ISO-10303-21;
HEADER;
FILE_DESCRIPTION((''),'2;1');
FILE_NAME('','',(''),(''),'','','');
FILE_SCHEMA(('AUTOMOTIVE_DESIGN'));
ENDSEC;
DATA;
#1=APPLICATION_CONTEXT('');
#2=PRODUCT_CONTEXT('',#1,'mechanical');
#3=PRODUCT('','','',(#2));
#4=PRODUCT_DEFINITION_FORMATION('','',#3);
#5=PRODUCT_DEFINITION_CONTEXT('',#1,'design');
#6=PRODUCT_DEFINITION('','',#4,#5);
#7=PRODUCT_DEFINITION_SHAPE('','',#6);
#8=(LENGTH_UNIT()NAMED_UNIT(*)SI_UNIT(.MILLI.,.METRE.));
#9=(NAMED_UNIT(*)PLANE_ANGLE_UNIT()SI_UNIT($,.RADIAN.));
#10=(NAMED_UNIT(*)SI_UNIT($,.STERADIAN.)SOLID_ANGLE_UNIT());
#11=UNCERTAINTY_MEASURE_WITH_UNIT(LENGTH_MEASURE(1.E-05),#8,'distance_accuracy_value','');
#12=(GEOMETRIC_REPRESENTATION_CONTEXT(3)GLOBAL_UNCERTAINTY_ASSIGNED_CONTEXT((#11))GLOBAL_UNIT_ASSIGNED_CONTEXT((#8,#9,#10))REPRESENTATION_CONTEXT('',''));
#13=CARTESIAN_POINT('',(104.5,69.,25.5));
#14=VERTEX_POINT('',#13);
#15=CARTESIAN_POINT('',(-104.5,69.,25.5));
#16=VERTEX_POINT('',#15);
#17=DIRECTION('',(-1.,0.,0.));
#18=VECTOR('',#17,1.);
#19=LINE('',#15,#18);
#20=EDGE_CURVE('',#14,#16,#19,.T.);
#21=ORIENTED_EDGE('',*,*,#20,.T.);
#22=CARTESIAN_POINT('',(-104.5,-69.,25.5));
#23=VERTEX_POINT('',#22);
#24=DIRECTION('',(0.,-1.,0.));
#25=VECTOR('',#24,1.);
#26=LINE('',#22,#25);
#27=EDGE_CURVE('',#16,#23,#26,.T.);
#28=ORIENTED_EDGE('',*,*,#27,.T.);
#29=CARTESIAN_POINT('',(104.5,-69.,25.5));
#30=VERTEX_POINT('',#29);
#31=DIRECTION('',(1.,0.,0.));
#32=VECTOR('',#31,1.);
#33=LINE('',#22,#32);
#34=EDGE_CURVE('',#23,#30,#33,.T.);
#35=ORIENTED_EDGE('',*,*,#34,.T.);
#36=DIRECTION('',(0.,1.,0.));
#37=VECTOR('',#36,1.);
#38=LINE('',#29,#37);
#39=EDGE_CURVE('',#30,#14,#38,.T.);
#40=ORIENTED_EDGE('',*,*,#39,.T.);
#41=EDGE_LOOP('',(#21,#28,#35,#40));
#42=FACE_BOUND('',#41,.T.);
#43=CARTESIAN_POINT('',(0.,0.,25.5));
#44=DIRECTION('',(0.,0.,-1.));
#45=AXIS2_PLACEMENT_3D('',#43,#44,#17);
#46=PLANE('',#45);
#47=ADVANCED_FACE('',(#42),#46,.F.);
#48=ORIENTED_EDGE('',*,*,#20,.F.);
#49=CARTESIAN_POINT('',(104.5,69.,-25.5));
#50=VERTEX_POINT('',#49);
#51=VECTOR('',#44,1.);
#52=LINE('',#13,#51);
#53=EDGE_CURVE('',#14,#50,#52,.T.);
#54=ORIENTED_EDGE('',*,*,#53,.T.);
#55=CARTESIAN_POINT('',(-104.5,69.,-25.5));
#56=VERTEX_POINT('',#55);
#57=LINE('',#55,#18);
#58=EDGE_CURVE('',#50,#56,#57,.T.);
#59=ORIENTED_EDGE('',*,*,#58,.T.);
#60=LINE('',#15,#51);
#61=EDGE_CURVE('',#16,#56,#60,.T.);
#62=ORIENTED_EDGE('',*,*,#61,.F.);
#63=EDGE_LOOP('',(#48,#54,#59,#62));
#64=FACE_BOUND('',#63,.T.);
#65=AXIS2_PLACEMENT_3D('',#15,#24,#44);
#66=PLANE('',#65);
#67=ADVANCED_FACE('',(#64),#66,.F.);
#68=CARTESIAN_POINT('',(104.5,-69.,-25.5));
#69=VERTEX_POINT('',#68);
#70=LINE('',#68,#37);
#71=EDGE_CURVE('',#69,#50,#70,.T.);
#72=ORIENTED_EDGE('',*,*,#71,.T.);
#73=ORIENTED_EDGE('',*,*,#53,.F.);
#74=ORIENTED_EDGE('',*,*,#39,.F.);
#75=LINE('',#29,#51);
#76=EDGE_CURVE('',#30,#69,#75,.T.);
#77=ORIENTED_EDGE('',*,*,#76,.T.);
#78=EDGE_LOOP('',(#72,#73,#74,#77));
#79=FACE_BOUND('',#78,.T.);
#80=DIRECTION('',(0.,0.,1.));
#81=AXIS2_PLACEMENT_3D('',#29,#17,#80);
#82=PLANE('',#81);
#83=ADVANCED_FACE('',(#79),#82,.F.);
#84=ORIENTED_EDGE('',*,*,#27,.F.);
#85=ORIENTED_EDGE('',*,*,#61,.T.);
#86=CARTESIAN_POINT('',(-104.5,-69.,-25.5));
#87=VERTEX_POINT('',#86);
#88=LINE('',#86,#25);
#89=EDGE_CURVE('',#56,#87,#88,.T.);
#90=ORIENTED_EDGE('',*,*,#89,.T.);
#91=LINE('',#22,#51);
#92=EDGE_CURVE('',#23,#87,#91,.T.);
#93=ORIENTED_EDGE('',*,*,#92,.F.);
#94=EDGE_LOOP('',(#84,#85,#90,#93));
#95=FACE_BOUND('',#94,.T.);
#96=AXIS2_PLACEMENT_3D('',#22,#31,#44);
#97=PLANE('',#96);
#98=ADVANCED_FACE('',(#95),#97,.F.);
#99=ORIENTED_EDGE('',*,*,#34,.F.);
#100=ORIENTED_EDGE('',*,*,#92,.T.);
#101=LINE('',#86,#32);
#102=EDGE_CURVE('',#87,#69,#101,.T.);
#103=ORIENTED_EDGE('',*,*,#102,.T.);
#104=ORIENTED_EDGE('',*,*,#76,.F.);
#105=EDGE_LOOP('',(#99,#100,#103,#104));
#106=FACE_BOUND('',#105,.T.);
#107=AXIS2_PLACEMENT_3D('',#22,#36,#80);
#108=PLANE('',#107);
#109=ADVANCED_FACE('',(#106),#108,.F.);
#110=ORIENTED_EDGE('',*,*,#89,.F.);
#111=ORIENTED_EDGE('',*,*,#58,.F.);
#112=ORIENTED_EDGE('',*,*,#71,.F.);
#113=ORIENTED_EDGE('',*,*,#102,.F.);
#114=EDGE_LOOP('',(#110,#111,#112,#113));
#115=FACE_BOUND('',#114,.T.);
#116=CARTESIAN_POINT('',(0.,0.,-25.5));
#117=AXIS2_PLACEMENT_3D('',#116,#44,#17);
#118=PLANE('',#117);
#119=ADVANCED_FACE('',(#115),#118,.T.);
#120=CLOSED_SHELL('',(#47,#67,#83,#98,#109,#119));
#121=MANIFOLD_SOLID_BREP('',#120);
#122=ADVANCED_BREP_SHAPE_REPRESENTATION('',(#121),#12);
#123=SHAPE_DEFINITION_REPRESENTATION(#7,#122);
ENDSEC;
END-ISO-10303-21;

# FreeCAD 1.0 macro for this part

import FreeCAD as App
import Part
import Sketcher
from FreeCAD import Vector


def add_polygon(sketch, points):
    """Adds a closed chain of lines whose ends are joined by coincident constraints."""
    first, n = sketch.GeometryCount, len(points)
    for a, b in zip(points, points[1:] + points[:1]):
        sketch.addGeometry(Part.LineSegment(App.Vector(*a, 0), App.Vector(*b, 0)), False)
    for i in range(n):
        sketch.addConstraint(Sketcher.Constraint("Coincident", first + i, 2, first + (i + 1) % n, 1))

doc = App.newDocument("Part")
body = doc.addObject("PartDesign::Body", "Body")

# Sketch on XY plane
sketch1 = doc.addObject("Sketcher::SketchObject", "Sketch")
body.addObject(sketch1)
sketch1.AttachmentSupport = (doc.XY_Plane, [""])
sketch1.MapMode = "FlatFace"
add_polygon(sketch1, [(-104.5, 69), (-104.5, -69), (104.5, -69), (104.5, 69)])  # lines 0-3
sketch1.addConstraint([
    Sketcher.Constraint("Vertical", 0),
    Sketcher.Constraint("Horizontal", 1),
    Sketcher.Constraint("Vertical", 2),
    Sketcher.Constraint("Horizontal", 3),
    Sketcher.Constraint("Symmetric", 0, 2, 2, 2, -1, 1),
    Sketcher.Constraint("DistanceX", 1, 1, 1, 2, 209.0),
    Sketcher.Constraint("DistanceY", 0, 2, 0, 1, 138.0),
])
pad1 = doc.addObject("PartDesign::Pad", "Pad")
body.addObject(pad1)
pad1.Profile = sketch1
pad1.Length = 51
pad1.Midplane = True

doc.recompute()
